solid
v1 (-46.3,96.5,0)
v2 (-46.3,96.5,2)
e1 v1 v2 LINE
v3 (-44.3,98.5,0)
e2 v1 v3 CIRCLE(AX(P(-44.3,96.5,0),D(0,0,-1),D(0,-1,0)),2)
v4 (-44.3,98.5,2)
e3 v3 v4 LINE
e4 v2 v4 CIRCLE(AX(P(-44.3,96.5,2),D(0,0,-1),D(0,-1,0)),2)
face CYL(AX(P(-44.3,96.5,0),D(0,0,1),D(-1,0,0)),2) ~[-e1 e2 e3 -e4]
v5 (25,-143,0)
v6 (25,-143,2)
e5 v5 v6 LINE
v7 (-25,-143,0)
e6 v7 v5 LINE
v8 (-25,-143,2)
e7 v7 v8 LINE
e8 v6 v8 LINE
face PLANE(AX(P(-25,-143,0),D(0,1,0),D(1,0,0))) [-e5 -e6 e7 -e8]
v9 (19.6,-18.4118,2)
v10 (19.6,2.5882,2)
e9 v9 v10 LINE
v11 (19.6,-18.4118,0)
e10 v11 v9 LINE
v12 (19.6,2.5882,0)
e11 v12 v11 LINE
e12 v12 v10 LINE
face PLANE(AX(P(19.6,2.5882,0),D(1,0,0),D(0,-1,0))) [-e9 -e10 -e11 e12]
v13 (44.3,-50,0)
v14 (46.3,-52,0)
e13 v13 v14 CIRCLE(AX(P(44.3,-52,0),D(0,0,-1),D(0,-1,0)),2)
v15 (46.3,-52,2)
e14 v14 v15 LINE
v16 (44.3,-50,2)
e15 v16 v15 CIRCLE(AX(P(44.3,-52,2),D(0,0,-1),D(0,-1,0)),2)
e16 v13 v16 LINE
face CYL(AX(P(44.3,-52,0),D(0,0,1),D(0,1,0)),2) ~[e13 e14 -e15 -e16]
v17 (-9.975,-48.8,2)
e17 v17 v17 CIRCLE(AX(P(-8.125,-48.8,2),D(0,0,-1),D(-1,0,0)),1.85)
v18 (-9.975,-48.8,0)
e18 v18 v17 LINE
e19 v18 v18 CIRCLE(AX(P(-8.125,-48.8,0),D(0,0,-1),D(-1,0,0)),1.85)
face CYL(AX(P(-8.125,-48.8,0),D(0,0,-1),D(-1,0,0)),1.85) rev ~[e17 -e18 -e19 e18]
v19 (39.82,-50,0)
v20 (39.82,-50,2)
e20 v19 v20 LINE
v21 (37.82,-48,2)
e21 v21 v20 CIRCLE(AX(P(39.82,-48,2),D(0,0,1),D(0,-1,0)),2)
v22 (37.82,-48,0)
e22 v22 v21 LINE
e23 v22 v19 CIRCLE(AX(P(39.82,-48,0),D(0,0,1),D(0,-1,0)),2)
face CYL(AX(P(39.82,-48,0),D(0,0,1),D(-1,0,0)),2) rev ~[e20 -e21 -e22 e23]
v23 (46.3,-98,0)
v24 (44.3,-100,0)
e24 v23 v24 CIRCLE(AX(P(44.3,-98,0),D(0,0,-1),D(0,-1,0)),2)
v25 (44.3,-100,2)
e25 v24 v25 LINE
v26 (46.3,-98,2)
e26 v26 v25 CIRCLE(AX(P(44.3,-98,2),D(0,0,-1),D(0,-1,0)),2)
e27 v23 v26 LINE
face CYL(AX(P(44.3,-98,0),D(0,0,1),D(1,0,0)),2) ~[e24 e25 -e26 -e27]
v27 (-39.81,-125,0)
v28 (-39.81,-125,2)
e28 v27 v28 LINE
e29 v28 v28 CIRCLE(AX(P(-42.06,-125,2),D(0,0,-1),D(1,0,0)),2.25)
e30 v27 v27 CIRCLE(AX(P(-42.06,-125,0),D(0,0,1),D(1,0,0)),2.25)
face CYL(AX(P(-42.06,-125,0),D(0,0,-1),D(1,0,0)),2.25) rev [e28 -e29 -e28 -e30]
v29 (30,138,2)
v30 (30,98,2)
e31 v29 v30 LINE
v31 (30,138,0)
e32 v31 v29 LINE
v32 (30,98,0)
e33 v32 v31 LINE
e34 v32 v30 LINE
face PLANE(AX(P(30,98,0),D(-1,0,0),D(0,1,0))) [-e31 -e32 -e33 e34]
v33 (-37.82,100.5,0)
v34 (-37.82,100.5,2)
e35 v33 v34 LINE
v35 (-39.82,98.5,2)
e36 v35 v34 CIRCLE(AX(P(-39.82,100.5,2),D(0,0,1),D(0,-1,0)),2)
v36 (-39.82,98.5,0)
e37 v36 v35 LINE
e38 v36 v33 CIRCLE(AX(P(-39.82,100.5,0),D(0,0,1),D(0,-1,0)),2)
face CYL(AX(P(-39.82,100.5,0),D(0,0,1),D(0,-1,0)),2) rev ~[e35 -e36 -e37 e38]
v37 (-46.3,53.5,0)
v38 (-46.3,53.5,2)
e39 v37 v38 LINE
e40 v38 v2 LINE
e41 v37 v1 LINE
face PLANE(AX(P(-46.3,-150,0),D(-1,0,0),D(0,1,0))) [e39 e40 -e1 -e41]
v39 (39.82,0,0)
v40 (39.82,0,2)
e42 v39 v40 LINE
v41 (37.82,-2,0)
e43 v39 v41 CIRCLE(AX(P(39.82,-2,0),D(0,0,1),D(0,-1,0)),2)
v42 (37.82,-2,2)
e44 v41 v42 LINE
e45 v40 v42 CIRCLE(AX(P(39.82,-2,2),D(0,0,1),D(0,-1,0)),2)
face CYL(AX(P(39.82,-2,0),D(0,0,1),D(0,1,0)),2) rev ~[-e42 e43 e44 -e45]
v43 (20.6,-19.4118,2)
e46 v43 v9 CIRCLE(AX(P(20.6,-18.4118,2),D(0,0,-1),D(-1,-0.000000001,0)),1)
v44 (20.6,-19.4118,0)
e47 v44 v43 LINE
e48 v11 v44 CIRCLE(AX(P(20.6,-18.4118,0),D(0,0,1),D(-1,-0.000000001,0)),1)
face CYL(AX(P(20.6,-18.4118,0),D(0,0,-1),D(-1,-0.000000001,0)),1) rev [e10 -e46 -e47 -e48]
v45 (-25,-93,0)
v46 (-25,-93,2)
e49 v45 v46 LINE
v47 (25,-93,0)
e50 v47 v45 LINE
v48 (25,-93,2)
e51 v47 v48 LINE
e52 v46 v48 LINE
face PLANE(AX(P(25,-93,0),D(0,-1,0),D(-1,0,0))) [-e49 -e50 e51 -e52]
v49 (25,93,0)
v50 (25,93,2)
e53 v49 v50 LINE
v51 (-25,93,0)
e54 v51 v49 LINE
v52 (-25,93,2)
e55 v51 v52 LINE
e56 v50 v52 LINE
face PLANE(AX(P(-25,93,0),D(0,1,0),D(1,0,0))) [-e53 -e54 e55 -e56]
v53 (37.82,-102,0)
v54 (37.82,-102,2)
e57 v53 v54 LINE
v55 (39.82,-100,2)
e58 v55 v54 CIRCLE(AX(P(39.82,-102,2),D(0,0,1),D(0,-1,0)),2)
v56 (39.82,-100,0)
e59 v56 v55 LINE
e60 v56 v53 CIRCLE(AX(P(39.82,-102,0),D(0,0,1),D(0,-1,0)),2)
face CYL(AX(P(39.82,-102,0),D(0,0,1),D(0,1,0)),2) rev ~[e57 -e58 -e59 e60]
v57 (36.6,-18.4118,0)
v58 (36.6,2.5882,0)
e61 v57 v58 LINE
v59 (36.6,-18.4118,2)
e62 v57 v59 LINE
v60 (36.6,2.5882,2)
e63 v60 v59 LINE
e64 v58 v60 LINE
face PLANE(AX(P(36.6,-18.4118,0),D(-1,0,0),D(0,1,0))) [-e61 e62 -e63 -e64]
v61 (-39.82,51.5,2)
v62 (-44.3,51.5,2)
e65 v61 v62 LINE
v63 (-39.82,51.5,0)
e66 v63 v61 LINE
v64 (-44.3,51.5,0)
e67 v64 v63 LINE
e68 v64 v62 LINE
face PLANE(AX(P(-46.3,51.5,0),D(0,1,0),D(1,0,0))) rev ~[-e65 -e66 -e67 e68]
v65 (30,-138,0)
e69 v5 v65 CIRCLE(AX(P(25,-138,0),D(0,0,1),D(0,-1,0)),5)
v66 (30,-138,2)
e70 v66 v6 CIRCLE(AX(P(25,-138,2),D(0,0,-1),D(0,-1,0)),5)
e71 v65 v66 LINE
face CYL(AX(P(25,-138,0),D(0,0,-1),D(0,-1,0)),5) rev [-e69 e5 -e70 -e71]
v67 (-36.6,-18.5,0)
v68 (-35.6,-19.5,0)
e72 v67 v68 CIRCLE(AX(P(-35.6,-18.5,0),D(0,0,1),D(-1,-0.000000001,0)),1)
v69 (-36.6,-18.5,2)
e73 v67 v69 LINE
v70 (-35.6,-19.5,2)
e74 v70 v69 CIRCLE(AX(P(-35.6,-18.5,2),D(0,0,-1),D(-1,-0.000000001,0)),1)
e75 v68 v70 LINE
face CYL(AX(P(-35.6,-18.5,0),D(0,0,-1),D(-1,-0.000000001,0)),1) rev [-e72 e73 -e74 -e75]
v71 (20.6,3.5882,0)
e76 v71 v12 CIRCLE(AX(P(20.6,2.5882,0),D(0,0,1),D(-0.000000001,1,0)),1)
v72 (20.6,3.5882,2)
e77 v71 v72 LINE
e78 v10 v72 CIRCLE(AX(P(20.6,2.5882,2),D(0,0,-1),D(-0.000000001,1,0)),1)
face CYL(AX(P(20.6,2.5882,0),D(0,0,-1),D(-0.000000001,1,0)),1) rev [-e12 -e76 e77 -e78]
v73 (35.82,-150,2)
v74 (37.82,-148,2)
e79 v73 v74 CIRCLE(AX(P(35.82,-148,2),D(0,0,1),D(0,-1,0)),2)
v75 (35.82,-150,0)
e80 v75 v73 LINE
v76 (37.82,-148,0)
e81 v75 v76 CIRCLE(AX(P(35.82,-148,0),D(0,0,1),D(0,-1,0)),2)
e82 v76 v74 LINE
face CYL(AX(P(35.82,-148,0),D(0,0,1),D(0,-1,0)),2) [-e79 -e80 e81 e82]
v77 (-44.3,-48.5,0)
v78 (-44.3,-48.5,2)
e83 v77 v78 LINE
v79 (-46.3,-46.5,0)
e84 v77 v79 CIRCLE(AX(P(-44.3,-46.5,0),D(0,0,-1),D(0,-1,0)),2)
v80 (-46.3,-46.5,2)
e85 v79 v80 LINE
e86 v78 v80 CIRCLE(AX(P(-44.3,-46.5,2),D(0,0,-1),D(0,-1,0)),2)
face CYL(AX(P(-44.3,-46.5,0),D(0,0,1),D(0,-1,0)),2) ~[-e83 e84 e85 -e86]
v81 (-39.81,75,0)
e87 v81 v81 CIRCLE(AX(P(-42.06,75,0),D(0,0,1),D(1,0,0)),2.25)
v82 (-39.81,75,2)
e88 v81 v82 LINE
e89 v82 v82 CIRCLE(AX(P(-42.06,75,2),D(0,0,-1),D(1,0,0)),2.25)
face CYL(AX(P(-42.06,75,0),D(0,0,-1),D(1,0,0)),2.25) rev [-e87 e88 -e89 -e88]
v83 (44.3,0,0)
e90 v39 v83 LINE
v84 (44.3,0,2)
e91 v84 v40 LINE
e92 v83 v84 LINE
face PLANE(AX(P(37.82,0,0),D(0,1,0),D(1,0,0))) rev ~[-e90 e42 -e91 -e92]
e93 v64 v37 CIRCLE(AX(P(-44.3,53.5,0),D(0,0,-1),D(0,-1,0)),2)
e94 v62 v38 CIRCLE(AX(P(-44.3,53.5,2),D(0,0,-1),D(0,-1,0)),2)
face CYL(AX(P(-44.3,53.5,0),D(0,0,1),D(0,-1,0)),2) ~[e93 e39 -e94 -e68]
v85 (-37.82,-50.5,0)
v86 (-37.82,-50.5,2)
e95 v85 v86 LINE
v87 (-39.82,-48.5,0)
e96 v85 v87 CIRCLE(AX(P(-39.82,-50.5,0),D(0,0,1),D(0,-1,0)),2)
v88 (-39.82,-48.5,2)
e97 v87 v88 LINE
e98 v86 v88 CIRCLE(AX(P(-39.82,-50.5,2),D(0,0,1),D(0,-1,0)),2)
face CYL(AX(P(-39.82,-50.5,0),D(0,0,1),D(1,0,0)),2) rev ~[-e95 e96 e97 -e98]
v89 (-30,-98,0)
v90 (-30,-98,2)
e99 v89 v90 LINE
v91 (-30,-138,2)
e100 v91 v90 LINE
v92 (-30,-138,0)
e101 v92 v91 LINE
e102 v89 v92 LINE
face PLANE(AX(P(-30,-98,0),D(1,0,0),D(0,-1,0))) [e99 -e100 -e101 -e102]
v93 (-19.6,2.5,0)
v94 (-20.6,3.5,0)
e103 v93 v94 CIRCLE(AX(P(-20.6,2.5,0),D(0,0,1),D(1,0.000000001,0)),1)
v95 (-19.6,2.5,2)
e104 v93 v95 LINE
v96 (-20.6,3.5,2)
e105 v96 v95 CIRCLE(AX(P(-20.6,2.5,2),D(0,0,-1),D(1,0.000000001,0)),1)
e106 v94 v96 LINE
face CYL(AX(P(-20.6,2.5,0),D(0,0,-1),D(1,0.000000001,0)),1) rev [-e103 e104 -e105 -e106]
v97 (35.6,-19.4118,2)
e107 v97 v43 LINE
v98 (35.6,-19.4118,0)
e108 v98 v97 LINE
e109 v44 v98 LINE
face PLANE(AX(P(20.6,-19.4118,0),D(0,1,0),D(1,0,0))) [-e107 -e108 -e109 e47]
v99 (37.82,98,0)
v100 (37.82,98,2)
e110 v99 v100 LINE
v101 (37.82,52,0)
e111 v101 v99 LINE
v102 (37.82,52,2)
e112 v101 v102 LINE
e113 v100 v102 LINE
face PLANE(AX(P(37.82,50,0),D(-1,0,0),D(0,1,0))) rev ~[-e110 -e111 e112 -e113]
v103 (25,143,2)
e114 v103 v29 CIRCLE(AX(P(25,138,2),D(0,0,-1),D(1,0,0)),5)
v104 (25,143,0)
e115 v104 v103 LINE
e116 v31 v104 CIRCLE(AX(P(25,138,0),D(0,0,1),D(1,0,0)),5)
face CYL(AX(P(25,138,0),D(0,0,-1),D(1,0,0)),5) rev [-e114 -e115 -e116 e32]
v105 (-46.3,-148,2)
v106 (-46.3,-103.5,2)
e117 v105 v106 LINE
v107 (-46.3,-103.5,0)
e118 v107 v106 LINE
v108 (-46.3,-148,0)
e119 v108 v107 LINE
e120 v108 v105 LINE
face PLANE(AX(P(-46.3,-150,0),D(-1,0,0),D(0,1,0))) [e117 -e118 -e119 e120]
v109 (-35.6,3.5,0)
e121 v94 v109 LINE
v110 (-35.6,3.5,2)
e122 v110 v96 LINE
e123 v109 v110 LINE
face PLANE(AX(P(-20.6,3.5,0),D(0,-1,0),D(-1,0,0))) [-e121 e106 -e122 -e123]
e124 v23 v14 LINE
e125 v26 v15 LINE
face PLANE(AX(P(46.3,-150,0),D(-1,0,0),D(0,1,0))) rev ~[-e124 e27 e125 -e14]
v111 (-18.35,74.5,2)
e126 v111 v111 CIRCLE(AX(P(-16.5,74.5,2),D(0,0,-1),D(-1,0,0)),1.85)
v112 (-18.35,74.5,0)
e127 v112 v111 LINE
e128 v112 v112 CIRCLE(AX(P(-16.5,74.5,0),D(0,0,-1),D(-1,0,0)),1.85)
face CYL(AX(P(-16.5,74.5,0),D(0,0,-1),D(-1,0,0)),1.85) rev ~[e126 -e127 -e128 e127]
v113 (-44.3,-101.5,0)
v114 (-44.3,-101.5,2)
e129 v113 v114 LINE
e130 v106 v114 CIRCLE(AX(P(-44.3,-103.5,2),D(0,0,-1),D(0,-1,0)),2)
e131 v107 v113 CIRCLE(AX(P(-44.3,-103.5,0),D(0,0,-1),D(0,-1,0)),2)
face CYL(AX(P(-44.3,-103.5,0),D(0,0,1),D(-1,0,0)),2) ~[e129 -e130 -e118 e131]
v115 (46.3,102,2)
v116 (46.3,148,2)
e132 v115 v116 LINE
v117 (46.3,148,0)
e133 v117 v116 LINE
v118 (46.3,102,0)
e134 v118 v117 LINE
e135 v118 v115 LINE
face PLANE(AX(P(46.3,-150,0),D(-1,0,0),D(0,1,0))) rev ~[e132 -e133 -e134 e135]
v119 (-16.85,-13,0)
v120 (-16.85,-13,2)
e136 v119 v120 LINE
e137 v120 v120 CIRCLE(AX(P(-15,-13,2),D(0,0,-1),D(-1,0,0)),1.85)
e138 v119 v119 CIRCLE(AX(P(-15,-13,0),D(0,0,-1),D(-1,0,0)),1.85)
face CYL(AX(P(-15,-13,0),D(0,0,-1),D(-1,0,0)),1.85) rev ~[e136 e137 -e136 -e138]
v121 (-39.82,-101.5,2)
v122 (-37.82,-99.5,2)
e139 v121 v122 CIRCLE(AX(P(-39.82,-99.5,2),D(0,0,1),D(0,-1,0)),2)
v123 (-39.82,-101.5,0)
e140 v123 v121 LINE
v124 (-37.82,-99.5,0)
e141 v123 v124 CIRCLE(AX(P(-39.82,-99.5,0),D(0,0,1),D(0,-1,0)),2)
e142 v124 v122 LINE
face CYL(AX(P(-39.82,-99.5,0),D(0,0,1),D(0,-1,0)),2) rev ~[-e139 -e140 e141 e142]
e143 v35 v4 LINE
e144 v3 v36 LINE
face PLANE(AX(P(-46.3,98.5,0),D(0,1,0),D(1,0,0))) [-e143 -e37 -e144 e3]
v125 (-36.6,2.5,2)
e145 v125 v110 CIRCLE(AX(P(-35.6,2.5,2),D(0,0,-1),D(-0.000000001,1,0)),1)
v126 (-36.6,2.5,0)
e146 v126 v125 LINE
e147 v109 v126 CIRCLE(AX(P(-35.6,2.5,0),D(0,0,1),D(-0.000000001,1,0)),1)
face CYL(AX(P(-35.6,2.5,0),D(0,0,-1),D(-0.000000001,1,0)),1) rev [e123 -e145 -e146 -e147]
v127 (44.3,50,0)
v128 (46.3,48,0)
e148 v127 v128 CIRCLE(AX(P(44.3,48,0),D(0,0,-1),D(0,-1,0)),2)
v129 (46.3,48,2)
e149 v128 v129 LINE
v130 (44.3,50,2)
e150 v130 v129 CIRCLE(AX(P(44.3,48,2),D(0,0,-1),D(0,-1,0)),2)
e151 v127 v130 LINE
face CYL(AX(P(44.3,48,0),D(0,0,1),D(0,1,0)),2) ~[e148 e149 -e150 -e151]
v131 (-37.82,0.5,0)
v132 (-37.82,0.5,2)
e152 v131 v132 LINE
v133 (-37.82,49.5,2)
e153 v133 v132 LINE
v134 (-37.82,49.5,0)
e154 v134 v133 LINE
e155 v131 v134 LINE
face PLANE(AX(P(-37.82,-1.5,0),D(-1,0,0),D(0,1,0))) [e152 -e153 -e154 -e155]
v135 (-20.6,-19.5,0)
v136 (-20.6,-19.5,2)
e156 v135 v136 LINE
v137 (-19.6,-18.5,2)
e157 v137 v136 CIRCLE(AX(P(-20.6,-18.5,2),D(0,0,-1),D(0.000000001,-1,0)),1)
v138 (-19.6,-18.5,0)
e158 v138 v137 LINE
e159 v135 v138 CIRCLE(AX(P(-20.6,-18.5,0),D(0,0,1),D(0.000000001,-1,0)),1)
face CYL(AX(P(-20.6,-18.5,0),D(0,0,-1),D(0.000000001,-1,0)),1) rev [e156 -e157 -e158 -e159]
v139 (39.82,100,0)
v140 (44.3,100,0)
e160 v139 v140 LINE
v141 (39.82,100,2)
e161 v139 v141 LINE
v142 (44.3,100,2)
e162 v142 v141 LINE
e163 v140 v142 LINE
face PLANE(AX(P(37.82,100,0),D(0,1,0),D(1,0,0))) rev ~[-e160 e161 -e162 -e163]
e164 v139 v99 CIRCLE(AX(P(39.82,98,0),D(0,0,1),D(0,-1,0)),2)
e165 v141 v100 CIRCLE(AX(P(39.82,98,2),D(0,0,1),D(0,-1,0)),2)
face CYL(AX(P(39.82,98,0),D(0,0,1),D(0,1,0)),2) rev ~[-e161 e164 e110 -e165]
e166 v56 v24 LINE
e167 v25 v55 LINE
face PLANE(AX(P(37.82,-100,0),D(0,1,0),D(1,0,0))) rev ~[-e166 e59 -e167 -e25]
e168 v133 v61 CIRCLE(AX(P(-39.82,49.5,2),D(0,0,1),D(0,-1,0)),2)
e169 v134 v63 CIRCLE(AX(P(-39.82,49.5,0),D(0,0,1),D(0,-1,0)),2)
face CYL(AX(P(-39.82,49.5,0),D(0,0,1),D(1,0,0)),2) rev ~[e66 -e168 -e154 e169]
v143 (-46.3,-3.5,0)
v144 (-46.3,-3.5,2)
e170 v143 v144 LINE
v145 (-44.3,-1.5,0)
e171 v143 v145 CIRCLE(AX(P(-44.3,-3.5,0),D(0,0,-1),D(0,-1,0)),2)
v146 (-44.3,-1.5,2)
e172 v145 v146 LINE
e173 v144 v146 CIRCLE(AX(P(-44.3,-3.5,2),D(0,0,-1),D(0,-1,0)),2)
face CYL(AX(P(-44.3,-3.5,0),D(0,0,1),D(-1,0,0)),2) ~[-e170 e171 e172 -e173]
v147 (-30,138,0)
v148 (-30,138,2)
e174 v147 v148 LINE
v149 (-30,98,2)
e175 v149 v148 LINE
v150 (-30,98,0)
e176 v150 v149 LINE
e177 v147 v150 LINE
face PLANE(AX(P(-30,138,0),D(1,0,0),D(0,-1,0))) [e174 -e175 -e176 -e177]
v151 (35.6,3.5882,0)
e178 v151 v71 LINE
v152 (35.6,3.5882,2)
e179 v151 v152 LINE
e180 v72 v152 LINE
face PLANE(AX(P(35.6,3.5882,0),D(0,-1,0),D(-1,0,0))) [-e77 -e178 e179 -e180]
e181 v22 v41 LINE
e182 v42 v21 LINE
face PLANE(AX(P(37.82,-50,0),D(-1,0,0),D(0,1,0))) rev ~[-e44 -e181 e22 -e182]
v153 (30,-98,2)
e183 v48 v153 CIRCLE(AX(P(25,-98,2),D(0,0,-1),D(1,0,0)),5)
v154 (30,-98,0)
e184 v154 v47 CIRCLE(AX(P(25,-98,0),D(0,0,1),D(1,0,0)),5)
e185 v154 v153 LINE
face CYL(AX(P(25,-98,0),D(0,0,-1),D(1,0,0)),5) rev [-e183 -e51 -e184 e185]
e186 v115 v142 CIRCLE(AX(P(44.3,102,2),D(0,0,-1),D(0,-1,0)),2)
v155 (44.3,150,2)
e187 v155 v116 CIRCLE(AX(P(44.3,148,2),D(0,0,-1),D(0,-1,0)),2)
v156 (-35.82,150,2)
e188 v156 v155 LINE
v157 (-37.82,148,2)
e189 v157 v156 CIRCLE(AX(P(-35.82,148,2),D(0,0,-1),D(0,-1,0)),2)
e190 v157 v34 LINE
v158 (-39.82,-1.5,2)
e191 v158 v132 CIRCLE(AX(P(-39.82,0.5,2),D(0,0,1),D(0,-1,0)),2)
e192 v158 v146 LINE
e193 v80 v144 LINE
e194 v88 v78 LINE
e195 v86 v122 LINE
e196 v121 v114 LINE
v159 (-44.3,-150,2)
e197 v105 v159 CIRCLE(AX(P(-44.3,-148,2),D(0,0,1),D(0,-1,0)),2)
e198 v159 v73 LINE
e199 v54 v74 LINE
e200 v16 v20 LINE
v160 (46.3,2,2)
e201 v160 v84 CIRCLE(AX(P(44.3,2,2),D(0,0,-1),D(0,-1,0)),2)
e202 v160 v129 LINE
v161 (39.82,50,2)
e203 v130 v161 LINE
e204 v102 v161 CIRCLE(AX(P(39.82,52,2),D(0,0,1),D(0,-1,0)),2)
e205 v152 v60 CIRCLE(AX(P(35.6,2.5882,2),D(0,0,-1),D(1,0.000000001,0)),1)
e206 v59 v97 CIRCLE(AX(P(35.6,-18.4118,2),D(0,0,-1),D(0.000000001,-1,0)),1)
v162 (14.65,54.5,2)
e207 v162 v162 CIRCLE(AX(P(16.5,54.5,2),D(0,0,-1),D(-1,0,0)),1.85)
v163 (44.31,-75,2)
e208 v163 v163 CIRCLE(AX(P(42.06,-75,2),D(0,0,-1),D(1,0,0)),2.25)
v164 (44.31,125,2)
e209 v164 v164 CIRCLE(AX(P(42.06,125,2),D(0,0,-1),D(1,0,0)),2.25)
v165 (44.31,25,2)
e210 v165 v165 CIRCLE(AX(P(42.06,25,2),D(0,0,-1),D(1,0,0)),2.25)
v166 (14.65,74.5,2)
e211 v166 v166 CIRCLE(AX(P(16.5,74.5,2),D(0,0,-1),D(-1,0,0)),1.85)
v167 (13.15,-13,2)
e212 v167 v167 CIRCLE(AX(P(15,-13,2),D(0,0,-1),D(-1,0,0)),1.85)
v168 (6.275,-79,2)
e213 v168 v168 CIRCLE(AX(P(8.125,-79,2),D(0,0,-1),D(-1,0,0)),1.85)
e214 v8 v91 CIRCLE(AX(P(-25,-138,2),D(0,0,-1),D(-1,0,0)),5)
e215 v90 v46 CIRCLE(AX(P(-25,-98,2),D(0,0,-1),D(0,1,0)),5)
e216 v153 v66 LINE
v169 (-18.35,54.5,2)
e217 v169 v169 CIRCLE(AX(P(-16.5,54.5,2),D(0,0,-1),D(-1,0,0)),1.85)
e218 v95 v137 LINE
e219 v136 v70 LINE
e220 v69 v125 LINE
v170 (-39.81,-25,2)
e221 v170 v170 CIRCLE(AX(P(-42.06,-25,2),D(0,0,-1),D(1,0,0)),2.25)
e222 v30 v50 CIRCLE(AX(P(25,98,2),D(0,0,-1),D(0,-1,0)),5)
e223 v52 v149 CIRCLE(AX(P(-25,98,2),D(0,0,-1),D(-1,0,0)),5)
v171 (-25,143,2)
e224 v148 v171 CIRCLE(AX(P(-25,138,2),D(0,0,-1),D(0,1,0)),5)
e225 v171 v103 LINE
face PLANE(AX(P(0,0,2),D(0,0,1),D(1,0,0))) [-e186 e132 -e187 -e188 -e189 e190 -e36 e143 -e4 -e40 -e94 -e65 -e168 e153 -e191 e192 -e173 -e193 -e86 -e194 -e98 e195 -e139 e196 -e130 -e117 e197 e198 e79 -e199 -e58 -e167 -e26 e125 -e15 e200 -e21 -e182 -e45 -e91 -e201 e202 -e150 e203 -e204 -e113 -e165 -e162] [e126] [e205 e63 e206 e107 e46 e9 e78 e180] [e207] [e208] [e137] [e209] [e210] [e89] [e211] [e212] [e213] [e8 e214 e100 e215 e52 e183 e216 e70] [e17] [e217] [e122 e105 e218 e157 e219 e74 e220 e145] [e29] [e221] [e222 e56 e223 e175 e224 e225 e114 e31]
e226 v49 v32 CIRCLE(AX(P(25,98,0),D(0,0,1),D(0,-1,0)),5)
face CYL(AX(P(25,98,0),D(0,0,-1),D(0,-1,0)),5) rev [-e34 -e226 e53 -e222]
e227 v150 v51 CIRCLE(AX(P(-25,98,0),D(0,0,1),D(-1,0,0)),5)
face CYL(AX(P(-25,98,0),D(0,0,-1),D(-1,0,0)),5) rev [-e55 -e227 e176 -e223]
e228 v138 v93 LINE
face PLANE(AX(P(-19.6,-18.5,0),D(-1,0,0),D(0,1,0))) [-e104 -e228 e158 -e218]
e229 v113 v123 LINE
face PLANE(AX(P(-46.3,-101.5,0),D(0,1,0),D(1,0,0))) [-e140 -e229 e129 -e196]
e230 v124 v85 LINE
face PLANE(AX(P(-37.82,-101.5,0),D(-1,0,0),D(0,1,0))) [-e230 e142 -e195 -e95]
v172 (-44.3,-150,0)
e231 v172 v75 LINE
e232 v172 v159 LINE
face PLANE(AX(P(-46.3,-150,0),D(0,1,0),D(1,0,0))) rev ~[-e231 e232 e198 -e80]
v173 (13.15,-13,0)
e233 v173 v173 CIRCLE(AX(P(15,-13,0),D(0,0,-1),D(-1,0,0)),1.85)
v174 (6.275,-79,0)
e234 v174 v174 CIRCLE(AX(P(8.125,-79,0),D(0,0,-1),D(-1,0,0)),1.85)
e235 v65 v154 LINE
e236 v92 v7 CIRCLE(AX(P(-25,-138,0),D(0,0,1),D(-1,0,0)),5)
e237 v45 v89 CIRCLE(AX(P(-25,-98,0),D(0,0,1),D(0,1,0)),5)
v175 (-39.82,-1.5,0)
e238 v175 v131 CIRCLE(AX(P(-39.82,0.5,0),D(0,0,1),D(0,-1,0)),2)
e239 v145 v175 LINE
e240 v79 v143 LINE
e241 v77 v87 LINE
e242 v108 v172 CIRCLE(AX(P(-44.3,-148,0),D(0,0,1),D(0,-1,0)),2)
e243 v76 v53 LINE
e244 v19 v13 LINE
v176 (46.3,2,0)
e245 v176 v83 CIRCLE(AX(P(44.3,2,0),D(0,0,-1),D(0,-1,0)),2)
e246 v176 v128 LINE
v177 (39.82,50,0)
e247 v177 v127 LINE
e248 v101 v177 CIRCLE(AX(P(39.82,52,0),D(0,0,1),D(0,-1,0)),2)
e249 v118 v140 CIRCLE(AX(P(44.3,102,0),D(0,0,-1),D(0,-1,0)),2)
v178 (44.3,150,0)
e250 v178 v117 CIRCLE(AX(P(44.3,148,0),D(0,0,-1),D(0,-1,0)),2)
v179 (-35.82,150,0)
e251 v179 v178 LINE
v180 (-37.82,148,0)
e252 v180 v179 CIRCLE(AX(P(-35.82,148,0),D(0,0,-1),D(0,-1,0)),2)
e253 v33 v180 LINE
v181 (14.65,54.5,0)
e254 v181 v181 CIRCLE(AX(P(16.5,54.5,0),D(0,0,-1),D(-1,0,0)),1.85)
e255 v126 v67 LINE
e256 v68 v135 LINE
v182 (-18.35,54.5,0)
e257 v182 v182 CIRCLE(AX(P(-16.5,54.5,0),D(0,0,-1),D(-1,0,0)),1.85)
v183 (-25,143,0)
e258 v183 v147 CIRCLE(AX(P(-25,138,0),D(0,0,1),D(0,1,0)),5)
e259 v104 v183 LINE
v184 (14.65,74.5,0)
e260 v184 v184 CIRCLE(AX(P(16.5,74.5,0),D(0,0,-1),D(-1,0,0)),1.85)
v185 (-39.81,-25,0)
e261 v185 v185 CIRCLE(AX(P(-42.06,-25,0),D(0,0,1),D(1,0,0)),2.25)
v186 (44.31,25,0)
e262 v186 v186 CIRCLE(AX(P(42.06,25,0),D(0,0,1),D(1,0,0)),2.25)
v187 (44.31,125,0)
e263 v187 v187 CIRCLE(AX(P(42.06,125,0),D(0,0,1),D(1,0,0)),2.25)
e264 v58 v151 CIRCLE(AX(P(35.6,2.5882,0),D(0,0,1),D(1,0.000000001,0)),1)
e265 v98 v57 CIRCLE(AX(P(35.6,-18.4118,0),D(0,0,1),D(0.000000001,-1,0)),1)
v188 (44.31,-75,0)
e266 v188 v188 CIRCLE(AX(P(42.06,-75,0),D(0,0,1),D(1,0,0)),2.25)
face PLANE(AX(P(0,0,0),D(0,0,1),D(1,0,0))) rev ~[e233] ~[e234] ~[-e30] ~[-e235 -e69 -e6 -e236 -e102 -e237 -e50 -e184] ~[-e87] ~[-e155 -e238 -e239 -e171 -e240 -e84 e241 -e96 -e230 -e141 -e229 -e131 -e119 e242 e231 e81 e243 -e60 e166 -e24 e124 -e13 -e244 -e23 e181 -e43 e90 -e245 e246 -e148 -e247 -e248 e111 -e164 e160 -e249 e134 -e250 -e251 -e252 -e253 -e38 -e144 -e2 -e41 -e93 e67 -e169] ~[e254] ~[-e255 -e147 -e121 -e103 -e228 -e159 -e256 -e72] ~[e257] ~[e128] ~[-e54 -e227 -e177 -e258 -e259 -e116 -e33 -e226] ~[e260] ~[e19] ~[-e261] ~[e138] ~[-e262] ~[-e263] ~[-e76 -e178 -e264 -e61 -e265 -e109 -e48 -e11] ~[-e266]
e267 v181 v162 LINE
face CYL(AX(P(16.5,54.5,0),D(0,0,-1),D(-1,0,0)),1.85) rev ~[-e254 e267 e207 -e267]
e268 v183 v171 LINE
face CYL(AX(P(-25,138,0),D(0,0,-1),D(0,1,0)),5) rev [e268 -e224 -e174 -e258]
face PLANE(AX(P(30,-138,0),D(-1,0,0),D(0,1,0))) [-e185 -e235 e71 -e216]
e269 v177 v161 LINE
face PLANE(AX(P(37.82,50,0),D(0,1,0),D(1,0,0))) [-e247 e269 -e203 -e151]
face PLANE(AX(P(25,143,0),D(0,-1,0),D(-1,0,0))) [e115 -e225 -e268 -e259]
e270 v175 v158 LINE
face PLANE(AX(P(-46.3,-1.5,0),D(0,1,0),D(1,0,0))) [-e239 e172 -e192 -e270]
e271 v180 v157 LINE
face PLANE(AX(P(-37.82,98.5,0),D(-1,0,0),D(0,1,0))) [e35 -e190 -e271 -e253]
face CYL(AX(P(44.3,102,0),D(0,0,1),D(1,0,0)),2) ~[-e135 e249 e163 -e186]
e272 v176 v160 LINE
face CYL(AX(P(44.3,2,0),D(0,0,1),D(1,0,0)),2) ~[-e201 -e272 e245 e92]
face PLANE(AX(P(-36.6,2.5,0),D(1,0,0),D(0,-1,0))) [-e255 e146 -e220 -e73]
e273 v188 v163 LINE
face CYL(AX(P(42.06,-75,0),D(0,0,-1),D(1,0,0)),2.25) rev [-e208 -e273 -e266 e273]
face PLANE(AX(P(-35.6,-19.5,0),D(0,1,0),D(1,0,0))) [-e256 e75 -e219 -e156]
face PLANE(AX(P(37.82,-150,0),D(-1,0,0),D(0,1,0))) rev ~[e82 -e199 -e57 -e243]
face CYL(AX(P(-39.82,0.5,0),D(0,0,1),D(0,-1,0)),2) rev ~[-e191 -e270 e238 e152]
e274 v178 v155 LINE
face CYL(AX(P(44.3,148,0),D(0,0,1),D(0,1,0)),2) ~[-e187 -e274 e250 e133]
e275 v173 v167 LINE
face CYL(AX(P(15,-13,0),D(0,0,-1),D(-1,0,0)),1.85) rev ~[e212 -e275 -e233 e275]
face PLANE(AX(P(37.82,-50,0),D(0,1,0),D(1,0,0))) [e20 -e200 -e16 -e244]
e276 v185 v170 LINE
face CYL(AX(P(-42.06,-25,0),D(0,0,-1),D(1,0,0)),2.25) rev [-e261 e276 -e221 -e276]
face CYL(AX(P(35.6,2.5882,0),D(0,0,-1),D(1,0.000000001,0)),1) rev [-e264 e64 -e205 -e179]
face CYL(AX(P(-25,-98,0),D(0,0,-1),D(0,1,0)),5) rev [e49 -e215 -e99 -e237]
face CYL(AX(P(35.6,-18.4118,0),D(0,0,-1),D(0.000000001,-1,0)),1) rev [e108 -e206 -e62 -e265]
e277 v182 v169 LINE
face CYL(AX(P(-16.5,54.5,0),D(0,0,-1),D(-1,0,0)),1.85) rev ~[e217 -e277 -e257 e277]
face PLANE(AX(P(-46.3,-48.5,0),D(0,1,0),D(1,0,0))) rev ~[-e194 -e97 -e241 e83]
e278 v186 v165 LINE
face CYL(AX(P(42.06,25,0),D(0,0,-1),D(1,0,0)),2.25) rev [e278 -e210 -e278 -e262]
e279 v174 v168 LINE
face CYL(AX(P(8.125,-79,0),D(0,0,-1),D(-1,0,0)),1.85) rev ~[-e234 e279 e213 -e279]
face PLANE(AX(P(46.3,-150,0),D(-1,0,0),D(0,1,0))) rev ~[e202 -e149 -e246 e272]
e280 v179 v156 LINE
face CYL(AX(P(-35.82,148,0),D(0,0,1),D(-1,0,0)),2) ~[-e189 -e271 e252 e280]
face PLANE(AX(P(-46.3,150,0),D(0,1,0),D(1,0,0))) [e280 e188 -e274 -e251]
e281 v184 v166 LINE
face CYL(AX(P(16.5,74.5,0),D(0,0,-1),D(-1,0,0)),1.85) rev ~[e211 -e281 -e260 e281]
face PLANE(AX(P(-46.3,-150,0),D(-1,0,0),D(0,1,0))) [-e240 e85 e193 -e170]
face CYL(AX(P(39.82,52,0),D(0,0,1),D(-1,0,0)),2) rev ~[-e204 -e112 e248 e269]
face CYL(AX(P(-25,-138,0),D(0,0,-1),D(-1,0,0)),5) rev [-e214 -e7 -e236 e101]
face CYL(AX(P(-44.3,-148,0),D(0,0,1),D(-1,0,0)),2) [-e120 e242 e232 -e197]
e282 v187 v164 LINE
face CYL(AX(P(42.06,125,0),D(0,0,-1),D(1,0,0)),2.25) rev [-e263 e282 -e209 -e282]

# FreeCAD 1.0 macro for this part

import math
import FreeCAD as App
import Part
import Sketcher

V = App.Vector


def edges_at(feature, points):
    """Names of the edges that pass closest to the given points."""
    edges = feature.Shape.Edges
    near = lambda p: min(range(len(edges)), key=lambda i: edges[i].distToShape(Part.Vertex(*p))[0])
    return sorted({f"Edge{near(p) + 1}" for p in points})


def add_polygon(sketch, points):
    """Adds a closed chain of lines whose ends are joined by coincident constraints."""
    first, n = sketch.GeometryCount, len(points)
    for a, b in zip(points, points[1:] + points[:1]):
        sketch.addGeometry(Part.LineSegment(App.Vector(*a, 0), App.Vector(*b, 0)), False)
    for i in range(n):
        sketch.addConstraint(Sketcher.Constraint("Coincident", first + i, 2, first + (i + 1) % n, 1))

doc = App.newDocument("Part")
params = doc.addObject("Spreadsheet::Sheet", "Params")
for row, (alias, value) in enumerate([
    ("sketch1_height", "300 mm"),
    ("sketch1_width", "92.6 mm"),
    ("pad1_length", "2 mm"),
    ("sketch2_diameter", "4.5 mm"),
    ("sketch2_height", "50 mm"),
    ("sketch2_height2", "53 mm"),
    ("sketch2_height3", "51.5 mm"),
    ("sketch2_width", "8.48 mm"),
    ("pocket1_length", "10 mm"),
    ("fillet_radius", "2 mm"),
    ("sketch3_diameter", "3.7 mm"),
    ("pocket2_length", "5 mm"),
    ("sketch4_radius", "1 mm"),
    ("sketch4_diameter", "3.7 mm"),
    ("sketch4_width", "15 mm"),
    ("sketch4_height", "21 mm"),
    ("pocket3_length", "10 mm"),
    ("sketch5_diameter", "3.7 mm"),
    ("pocket4_length", "8.5 mm"),
    ("sketch6_radius", "5 mm"),
    ("sketch6_width", "50 mm"),
    ("sketch6_height", "40 mm"),
    ("pocket5_length", "8.5 mm"),
], start=1):
    params.set(f"A{row}", alias)
    params.set(f"B{row}", "=" + value)
    params.setAlias(f"B{row}", alias)

body = doc.addObject("PartDesign::Body", "Body")

# Sketch on XY plane
sketch1 = doc.addObject("Sketcher::SketchObject", "Sketch")
body.addObject(sketch1)
sketch1.AttachmentSupport = (doc.XY_Plane, [""])
sketch1.MapMode = "FlatFace"
add_polygon(sketch1, [(-46.3, 150), (-46.3, -150), (46.3, -150), (46.3, 150)])  # lines 0-3
sketch1.addConstraint(Sketcher.Constraint("Vertical", 0))
sketch1.addConstraint(Sketcher.Constraint("Horizontal", 1))
sketch1.addConstraint(Sketcher.Constraint("Vertical", 2))
sketch1.addConstraint(Sketcher.Constraint("Horizontal", 3))
sketch1.addConstraint(Sketcher.Constraint("Symmetric", 0, 2, 2, 2, -1, 1))
sketch1.addConstraint(Sketcher.Constraint("DistanceY", 0, 2, 0, 1, 300.0))
sketch1.addConstraint(Sketcher.Constraint("DistanceX", 1, 1, 1, 2, 92.6))
sketch1.setExpression("Constraints[9]", "Params.sketch1_height")
sketch1.setExpression("Constraints[10]", "Params.sketch1_width")
pad1 = doc.addObject("PartDesign::Pad", "Pad")
body.addObject(pad1)
pad1.Profile = sketch1
pad1.setExpression("Length", "Params.pad1_length")

# Sketch on XY plane
sketch2 = doc.addObject("Sketcher::SketchObject", "Sketch001")
body.addObject(sketch2)
sketch2.AttachmentSupport = (doc.XY_Plane, [""])
sketch2.MapMode = "FlatFace"
sketch2.addGeometry(Part.Circle(V(-42.06, 75, 0), V(0, 0, 1), 2.25), False)  # 0
sketch2.addGeometry(Part.Circle(V(42.06, 125, 0), V(0, 0, 1), 2.25), False)  # 1
sketch2.addGeometry(Part.Circle(V(42.06, 25, 0), V(0, 0, 1), 2.25), False)  # 2
sketch2.addGeometry(Part.Circle(V(42.06, -75, 0), V(0, 0, 1), 2.25), False)  # 3
sketch2.addGeometry(Part.Circle(V(-42.06, -25, 0), V(0, 0, 1), 2.25), False)  # 4
sketch2.addGeometry(Part.Circle(V(-42.06, -125, 0), V(0, 0, 1), 2.25), False)  # 5
add_polygon(sketch2, [(-46.3, 150), (-46.3, 98.5), (-37.82, 98.5), (-37.82, 150)])  # lines 6-9
add_polygon(sketch2, [(37.82, 100), (37.82, 50), (46.3, 50), (46.3, 100)])  # lines 10-13
add_polygon(sketch2, [(37.82, 0), (37.82, -50), (46.3, -50), (46.3, 0)])  # lines 14-17
add_polygon(sketch2, [(-46.3, 51.5), (-46.3, -1.5), (-37.82, -1.5), (-37.82, 51.5)])  # lines 18-21
add_polygon(sketch2, [(-46.3, -48.5), (-46.3, -101.5), (-37.82, -101.5), (-37.82, -48.5)])  # lines 22-25
add_polygon(sketch2, [(37.82, -100), (37.82, -150), (46.3, -150), (46.3, -100)])  # lines 26-29
sketch2.addConstraint(Sketcher.Constraint("Vertical", 6))
sketch2.addConstraint(Sketcher.Constraint("Horizontal", 7))
sketch2.addConstraint(Sketcher.Constraint("Vertical", 8))
sketch2.addConstraint(Sketcher.Constraint("Horizontal", 9))
sketch2.addConstraint(Sketcher.Constraint("Vertical", 10))
sketch2.addConstraint(Sketcher.Constraint("Horizontal", 11))
sketch2.addConstraint(Sketcher.Constraint("Vertical", 12))
sketch2.addConstraint(Sketcher.Constraint("Horizontal", 13))
sketch2.addConstraint(Sketcher.Constraint("Vertical", 14))
sketch2.addConstraint(Sketcher.Constraint("Horizontal", 15))
sketch2.addConstraint(Sketcher.Constraint("Vertical", 16))
sketch2.addConstraint(Sketcher.Constraint("Horizontal", 17))
sketch2.addConstraint(Sketcher.Constraint("Vertical", 18))
sketch2.addConstraint(Sketcher.Constraint("Horizontal", 19))
sketch2.addConstraint(Sketcher.Constraint("Vertical", 20))
sketch2.addConstraint(Sketcher.Constraint("Horizontal", 21))
sketch2.addConstraint(Sketcher.Constraint("Vertical", 22))
sketch2.addConstraint(Sketcher.Constraint("Horizontal", 23))
sketch2.addConstraint(Sketcher.Constraint("Vertical", 24))
sketch2.addConstraint(Sketcher.Constraint("Horizontal", 25))
sketch2.addConstraint(Sketcher.Constraint("Vertical", 26))
sketch2.addConstraint(Sketcher.Constraint("Horizontal", 27))
sketch2.addConstraint(Sketcher.Constraint("Vertical", 28))
sketch2.addConstraint(Sketcher.Constraint("Horizontal", 29))
sketch2.addConstraint(Sketcher.Constraint("Equal", 0, 1))
sketch2.addConstraint(Sketcher.Constraint("Equal", 1, 2))
sketch2.addConstraint(Sketcher.Constraint("Equal", 2, 3))
sketch2.addConstraint(Sketcher.Constraint("Equal", 3, 4))
sketch2.addConstraint(Sketcher.Constraint("Equal", 4, 5))
sketch2.addConstraint(Sketcher.Constraint("Symmetric", 0, 3, 3, 3, -1, 1))
sketch2.addConstraint(Sketcher.Constraint("Symmetric", 2, 3, 4, 3, -1, 1))
sketch2.addConstraint(Sketcher.Constraint("Symmetric", 1, 3, 5, 3, -1, 1))
sketch2.addConstraint(Sketcher.Constraint("Symmetric", 8, 2, 26, 2, -1, 1))
sketch2.addConstraint(Sketcher.Constraint("Symmetric", 10, 2, 14, 2, -1))
sketch2.addConstraint(Sketcher.Constraint("Symmetric", 12, 2, 28, 2, -1))
sketch2.addConstraint(Sketcher.Constraint("PointOnObject", 16, 2, -1))
sketch2.addConstraint(Sketcher.Constraint("Vertical", 1, 3, 2, 3))
sketch2.addConstraint(Sketcher.Constraint("Vertical", 2, 3, 3, 3))
sketch2.addConstraint(Sketcher.Constraint("Vertical", 12, 2, 15, 2))
sketch2.addConstraint(Sketcher.Constraint("Vertical", 9, 2, 18, 2))
sketch2.addConstraint(Sketcher.Constraint("Vertical", 8, 2, 19, 2))
sketch2.addConstraint(Sketcher.Constraint("Vertical", 21, 2, 22, 2))
sketch2.addConstraint(Sketcher.Constraint("Vertical", 20, 2, 23, 2))
sketch2.addConstraint(Sketcher.Constraint("Vertical", 17, 2, 26, 2))
sketch2.addConstraint(Sketcher.Constraint("Equal", 9, 11))
sketch2.addConstraint(Sketcher.Constraint("Equal", 12, 14))
sketch2.addConstraint(Sketcher.Constraint("Equal", 20, 22))
sketch2.addConstraint(Sketcher.Constraint("Equal", 16, 26))
sketch2.addConstraint(Sketcher.Constraint("Diameter", 0, 4.5))
sketch2.addConstraint(Sketcher.Constraint("DistanceY", 10, 2, 10, 1, 50.0))
sketch2.addConstraint(Sketcher.Constraint("DistanceY", 18, 2, 18, 1, 53.0))
sketch2.addConstraint(Sketcher.Constraint("DistanceY", 6, 2, 6, 1, 51.5))
sketch2.addConstraint(Sketcher.Constraint("DistanceY", -1, 1, 0, 3, 75.0))
sketch2.addConstraint(Sketcher.Constraint("DistanceY", -1, 1, 1, 3, 125.0))
sketch2.addConstraint(Sketcher.Constraint("DistanceY", -1, 1, 2, 3, 25.0))
sketch2.addConstraint(Sketcher.Constraint("DistanceY", 20, 2, 7, 2, 47.0))
sketch2.addConstraint(Sketcher.Constraint("DistanceY", 22, 2, 18, 2, 100.0))
sketch2.addConstraint(Sketcher.Constraint("DistanceX", 7, 1, 7, 2, 8.48))
sketch2.addConstraint(Sketcher.Constraint("DistanceX", 6, 2, -1, 1, 46.3))
sketch2.addConstraint(Sketcher.Constraint("DistanceX", 0, 3, -1, 1, 42.06))
sketch2.setExpression("Constraints[72]", "Params.sketch2_diameter")
sketch2.setExpression("Constraints[73]", "Params.sketch2_height")
sketch2.setExpression("Constraints[74]", "Params.sketch2_height2")
sketch2.setExpression("Constraints[75]", "Params.sketch2_height3")
sketch2.setExpression("Constraints[81]", "Params.sketch2_width")
pocket1 = doc.addObject("PartDesign::Pocket", "Pocket")
body.addObject(pocket1)
pocket1.Profile = sketch2
pocket1.setExpression("Length", "Params.pocket1_length")
pocket1.Reversed = True
doc.recompute()

fillet = doc.addObject("PartDesign::Fillet", "Fillet")
body.addObject(fillet)
fillet.Base = (pocket1, edges_at(pocket1, [
    (46.3, -100, 1),
    (37.82, -100, 1),
    (37.82, -150, 1),
    (46.3, 50, 1),
    (46.3, 100, 1),
    (37.82, 100, 1),
    (37.82, 50, 1),
    (-46.3, -48.5, 1),
    (-46.3, -101.5, 1),
    (-37.82, -101.5, 1),
    (-37.82, -48.5, 1),
    (37.82, 0, 1),
    (37.82, -50, 1),
    (46.3, -50, 1),
    (46.3, 0, 1),
    (46.3, 150, 1),
    (-46.3, -150, 1),
    (-46.3, 51.5, 1),
    (-46.3, -1.5, 1),
    (-37.82, -1.5, 1),
    (-37.82, 51.5, 1),
    (-46.3, 98.5, 1),
    (-37.82, 98.5, 1),
    (-37.82, 150, 1),
]))
fillet.setExpression("Radius", "Params.fillet_radius")

# Sketch on XY plane
sketch3 = doc.addObject("Sketcher::SketchObject", "Sketch002")
body.addObject(sketch3)
sketch3.AttachmentSupport = (doc.XY_Plane, [""])
sketch3.MapMode = "FlatFace"
sketch3.addGeometry(Part.Circle(V(8.125, -79, 0), V(0, 0, 1), 1.85), False)
sketch3.addGeometry(Part.Circle(V(-8.125, -48.8, 0), V(0, 0, 1), 1.85), False)
sketch3.addConstraint(Sketcher.Constraint("Equal", 0, 1))
sketch3.addConstraint(Sketcher.Constraint("Diameter", 0, 3.7))
sketch3.addConstraint(Sketcher.Constraint("DistanceY", 0, 3, -1, 1, 79.0))
sketch3.addConstraint(Sketcher.Constraint("DistanceY", 1, 3, -1, 1, 48.8))
sketch3.addConstraint(Sketcher.Constraint("DistanceX", 1, 3, 0, 3, 16.25))
sketch3.addConstraint(Sketcher.Constraint("DistanceX", -1, 1, 0, 3, 8.125))
sketch3.setExpression("Constraints[1]", "Params.sketch3_diameter")
pocket2 = doc.addObject("PartDesign::Pocket", "Pocket001")
body.addObject(pocket2)
pocket2.Profile = sketch3
pocket2.setExpression("Length", "Params.pocket2_length")
pocket2.Reversed = True

# Sketch on XY plane
sketch4 = doc.addObject("Sketcher::SketchObject", "Sketch003")
body.addObject(sketch4)
sketch4.AttachmentSupport = (doc.XY_Plane, [""])
sketch4.MapMode = "FlatFace"
sketch4.addGeometry(Part.Circle(V(15, -13, 0), V(0, 0, 1), 1.85), False)
sketch4.addGeometry(Part.Circle(V(-15, -13, 0), V(0, 0, 1), 1.85), False)
sketch4.addGeometry(Part.LineSegment(V(-35.6, 3.5, 0), V(-20.6, 3.5, 0)), False)
sketch4.addGeometry(Part.ArcOfCircle(Part.Circle(V(-20.6, 2.5, 0), V(0, 0, 1), 1), math.radians(0), math.radians(90)), False)
sketch4.addGeometry(Part.LineSegment(V(-19.6, 2.5, 0), V(-19.6, -18.5, 0)), False)
sketch4.addGeometry(Part.ArcOfCircle(Part.Circle(V(-20.6, -18.5, 0), V(0, 0, 1), 1), math.radians(-90), math.radians(0)), False)
sketch4.addGeometry(Part.LineSegment(V(-20.6, -19.5, 0), V(-35.6, -19.5, 0)), False)
sketch4.addGeometry(Part.ArcOfCircle(Part.Circle(V(-35.6, -18.5, 0), V(0, 0, 1), 1), math.radians(-180), math.radians(-90)), False)
sketch4.addGeometry(Part.LineSegment(V(-36.6, -18.5, 0), V(-36.6, 2.5, 0)), False)
sketch4.addGeometry(Part.ArcOfCircle(Part.Circle(V(-35.6, 2.5, 0), V(0, 0, 1), 1), math.radians(90), math.radians(180)), False)
sketch4.addGeometry(Part.LineSegment(V(20.6, 3.5882, 0), V(35.6, 3.5882, 0)), False)
sketch4.addGeometry(Part.ArcOfCircle(Part.Circle(V(35.6, 2.5882, 0), V(0, 0, 1), 1), math.radians(0), math.radians(90)), False)
sketch4.addGeometry(Part.LineSegment(V(36.6, 2.5882, 0), V(36.6, -18.4118, 0)), False)
sketch4.addGeometry(Part.ArcOfCircle(Part.Circle(V(35.6, -18.4118, 0), V(0, 0, 1), 1), math.radians(-90), math.radians(0)), False)
sketch4.addGeometry(Part.LineSegment(V(35.6, -19.4118, 0), V(20.6, -19.4118, 0)), False)
sketch4.addGeometry(Part.ArcOfCircle(Part.Circle(V(20.6, -18.4118, 0), V(0, 0, 1), 1), math.radians(-180), math.radians(-90)), False)
sketch4.addGeometry(Part.LineSegment(V(19.6, -18.4118, 0), V(19.6, 2.5882, 0)), False)
sketch4.addGeometry(Part.ArcOfCircle(Part.Circle(V(20.6, 2.5882, 0), V(0, 0, 1), 1), math.radians(90), math.radians(180)), False)
sketch4.addConstraint(Sketcher.Constraint("Tangent", 2, 2, 3, 2))
sketch4.addConstraint(Sketcher.Constraint("Tangent", 3, 1, 4, 1))
sketch4.addConstraint(Sketcher.Constraint("Tangent", 4, 2, 5, 2))
sketch4.addConstraint(Sketcher.Constraint("Tangent", 5, 1, 6, 1))
sketch4.addConstraint(Sketcher.Constraint("Tangent", 6, 2, 7, 2))
sketch4.addConstraint(Sketcher.Constraint("Tangent", 7, 1, 8, 1))
sketch4.addConstraint(Sketcher.Constraint("Tangent", 8, 2, 9, 2))
sketch4.addConstraint(Sketcher.Constraint("Tangent", 9, 1, 2, 1))
sketch4.addConstraint(Sketcher.Constraint("Tangent", 10, 2, 11, 2))
sketch4.addConstraint(Sketcher.Constraint("Tangent", 11, 1, 12, 1))
sketch4.addConstraint(Sketcher.Constraint("Tangent", 12, 2, 13, 2))
sketch4.addConstraint(Sketcher.Constraint("Tangent", 13, 1, 14, 1))
sketch4.addConstraint(Sketcher.Constraint("Tangent", 14, 2, 15, 2))
sketch4.addConstraint(Sketcher.Constraint("Tangent", 15, 1, 16, 1))
sketch4.addConstraint(Sketcher.Constraint("Tangent", 16, 2, 17, 2))
sketch4.addConstraint(Sketcher.Constraint("Tangent", 17, 1, 10, 1))
sketch4.addConstraint(Sketcher.Constraint("Horizontal", 2))
sketch4.addConstraint(Sketcher.Constraint("Vertical", 4))
sketch4.addConstraint(Sketcher.Constraint("Horizontal", 6))
sketch4.addConstraint(Sketcher.Constraint("Vertical", 8))
sketch4.addConstraint(Sketcher.Constraint("Horizontal", 10))
sketch4.addConstraint(Sketcher.Constraint("Vertical", 12))
sketch4.addConstraint(Sketcher.Constraint("Horizontal", 14))
sketch4.addConstraint(Sketcher.Constraint("Vertical", 16))
sketch4.addConstraint(Sketcher.Constraint("Equal", 0, 1))
sketch4.addConstraint(Sketcher.Constraint("Equal", 3, 5))
sketch4.addConstraint(Sketcher.Constraint("Equal", 5, 7))
sketch4.addConstraint(Sketcher.Constraint("Equal", 7, 9))
sketch4.addConstraint(Sketcher.Constraint("Equal", 9, 11))
sketch4.addConstraint(Sketcher.Constraint("Equal", 11, 13))
sketch4.addConstraint(Sketcher.Constraint("Equal", 13, 15))
sketch4.addConstraint(Sketcher.Constraint("Equal", 15, 17))
sketch4.addConstraint(Sketcher.Constraint("Symmetric", 0, 3, 1, 3, -2))
sketch4.addConstraint(Sketcher.Constraint("Equal", 6, 10))
sketch4.addConstraint(Sketcher.Constraint("Equal", 8, 12))
sketch4.addConstraint(Sketcher.Constraint("Radius", 3, 1.0))
sketch4.addConstraint(Sketcher.Constraint("Diameter", 0, 3.7))
sketch4.addConstraint(Sketcher.Constraint("DistanceX", 2, 1, 2, 2, 15.0))
sketch4.addConstraint(Sketcher.Constraint("DistanceY", 4, 2, 4, 1, 21.0))
sketch4.addConstraint(Sketcher.Constraint("DistanceX", -1, 1, 0, 3, 15.0))
sketch4.addConstraint(Sketcher.Constraint("DistanceY", 0, 3, -1, 1, 13.0))
sketch4.addConstraint(Sketcher.Constraint("DistanceX", 3, 3, -1, 1, 20.6))
sketch4.addConstraint(Sketcher.Constraint("DistanceY", -1, 1, 3, 3, 2.5))
sketch4.addConstraint(Sketcher.Constraint("DistanceX", -1, 1, 11, 3, 35.6))
sketch4.addConstraint(Sketcher.Constraint("DistanceY", -1, 1, 11, 3, 2.5882))
sketch4.setExpression("Constraints[35]", "Params.sketch4_radius")
sketch4.setExpression("Constraints[36]", "Params.sketch4_diameter")
sketch4.setExpression("Constraints[37]", "Params.sketch4_width")
sketch4.setExpression("Constraints[38]", "Params.sketch4_height")
pocket3 = doc.addObject("PartDesign::Pocket", "Pocket002")
body.addObject(pocket3)
pocket3.Profile = sketch4
pocket3.setExpression("Length", "Params.pocket3_length")
pocket3.Reversed = True

# Sketch on XY plane
sketch5 = doc.addObject("Sketcher::SketchObject", "Sketch004")
body.addObject(sketch5)
sketch5.AttachmentSupport = (doc.XY_Plane, [""])
sketch5.MapMode = "FlatFace"
sketch5.addGeometry(Part.Circle(V(16.5, 74.5, 0), V(0, 0, 1), 1.85), False)
sketch5.addGeometry(Part.Circle(V(-16.5, 74.5, 0), V(0, 0, 1), 1.85), False)
sketch5.addGeometry(Part.Circle(V(-16.5, 54.5, 0), V(0, 0, 1), 1.85), False)
sketch5.addGeometry(Part.Circle(V(16.5, 54.5, 0), V(0, 0, 1), 1.85), False)
sketch5.addConstraint(Sketcher.Constraint("Equal", 0, 1))
sketch5.addConstraint(Sketcher.Constraint("Equal", 1, 2))
sketch5.addConstraint(Sketcher.Constraint("Equal", 2, 3))
sketch5.addConstraint(Sketcher.Constraint("Symmetric", 0, 3, 1, 3, -2))
sketch5.addConstraint(Sketcher.Constraint("Symmetric", 2, 3, 3, 3, -2))
sketch5.addConstraint(Sketcher.Constraint("Vertical", 1, 3, 2, 3))
sketch5.addConstraint(Sketcher.Constraint("Diameter", 0, 3.7))
sketch5.addConstraint(Sketcher.Constraint("DistanceX", 1, 3, 0, 3, 33.0))
sketch5.addConstraint(Sketcher.Constraint("DistanceY", 2, 3, 1, 3, 20.0))
sketch5.addConstraint(Sketcher.Constraint("DistanceY", -1, 1, 0, 3, 74.5))
sketch5.setExpression("Constraints[6]", "Params.sketch5_diameter")
pocket4 = doc.addObject("PartDesign::Pocket", "Pocket003")
body.addObject(pocket4)
pocket4.Profile = sketch5
pocket4.setExpression("Length", "Params.pocket4_length")
pocket4.Reversed = True

# Sketch on XY plane
sketch6 = doc.addObject("Sketcher::SketchObject", "Sketch005")
body.addObject(sketch6)
sketch6.AttachmentSupport = (doc.XY_Plane, [""])
sketch6.MapMode = "FlatFace"
sketch6.addGeometry(Part.LineSegment(V(25, 93, 0), V(-25, 93, 0)), False)
sketch6.addGeometry(Part.ArcOfCircle(Part.Circle(V(-25, 98, 0), V(0, 0, 1), 5), math.radians(180), math.radians(270)), False)
sketch6.addGeometry(Part.LineSegment(V(-30, 98, 0), V(-30, 138, 0)), False)
sketch6.addGeometry(Part.ArcOfCircle(Part.Circle(V(-25, 138, 0), V(0, 0, 1), 5), math.radians(90), math.radians(180)), False)
sketch6.addGeometry(Part.LineSegment(V(-25, 143, 0), V(25, 143, 0)), False)
sketch6.addGeometry(Part.ArcOfCircle(Part.Circle(V(25, 138, 0), V(0, 0, 1), 5), math.radians(0), math.radians(90)), False)
sketch6.addGeometry(Part.LineSegment(V(30, 138, 0), V(30, 98, 0)), False)
sketch6.addGeometry(Part.ArcOfCircle(Part.Circle(V(25, 98, 0), V(0, 0, 1), 5), math.radians(-90), math.radians(0)), False)
sketch6.addGeometry(Part.LineSegment(V(25, -143, 0), V(-25, -143, 0)), False)
sketch6.addGeometry(Part.ArcOfCircle(Part.Circle(V(-25, -138, 0), V(0, 0, 1), 5), math.radians(180), math.radians(270)), False)
sketch6.addGeometry(Part.LineSegment(V(-30, -138, 0), V(-30, -98, 0)), False)
sketch6.addGeometry(Part.ArcOfCircle(Part.Circle(V(-25, -98, 0), V(0, 0, 1), 5), math.radians(90), math.radians(180)), False)
sketch6.addGeometry(Part.LineSegment(V(-25, -93, 0), V(25, -93, 0)), False)
sketch6.addGeometry(Part.ArcOfCircle(Part.Circle(V(25, -98, 0), V(0, 0, 1), 5), math.radians(0), math.radians(90)), False)
sketch6.addGeometry(Part.LineSegment(V(30, -98, 0), V(30, -138, 0)), False)
sketch6.addGeometry(Part.ArcOfCircle(Part.Circle(V(25, -138, 0), V(0, 0, 1), 5), math.radians(-90), math.radians(0)), False)
sketch6.addConstraint(Sketcher.Constraint("Tangent", 0, 2, 1, 2))
sketch6.addConstraint(Sketcher.Constraint("Tangent", 1, 1, 2, 1))
sketch6.addConstraint(Sketcher.Constraint("Tangent", 2, 2, 3, 2))
sketch6.addConstraint(Sketcher.Constraint("Tangent", 3, 1, 4, 1))
sketch6.addConstraint(Sketcher.Constraint("Tangent", 4, 2, 5, 2))
sketch6.addConstraint(Sketcher.Constraint("Tangent", 5, 1, 6, 1))
sketch6.addConstraint(Sketcher.Constraint("Tangent", 6, 2, 7, 2))
sketch6.addConstraint(Sketcher.Constraint("Tangent", 7, 1, 0, 1))
sketch6.addConstraint(Sketcher.Constraint("Tangent", 8, 2, 9, 2))
sketch6.addConstraint(Sketcher.Constraint("Tangent", 9, 1, 10, 1))
sketch6.addConstraint(Sketcher.Constraint("Tangent", 10, 2, 11, 2))
sketch6.addConstraint(Sketcher.Constraint("Tangent", 11, 1, 12, 1))
sketch6.addConstraint(Sketcher.Constraint("Tangent", 12, 2, 13, 2))
sketch6.addConstraint(Sketcher.Constraint("Tangent", 13, 1, 14, 1))
sketch6.addConstraint(Sketcher.Constraint("Tangent", 14, 2, 15, 2))
sketch6.addConstraint(Sketcher.Constraint("Tangent", 15, 1, 8, 1))
sketch6.addConstraint(Sketcher.Constraint("Horizontal", 0))
sketch6.addConstraint(Sketcher.Constraint("Vertical", 2))
sketch6.addConstraint(Sketcher.Constraint("Horizontal", 4))
sketch6.addConstraint(Sketcher.Constraint("Vertical", 6))
sketch6.addConstraint(Sketcher.Constraint("Horizontal", 8))
sketch6.addConstraint(Sketcher.Constraint("Vertical", 10))
sketch6.addConstraint(Sketcher.Constraint("Horizontal", 12))
sketch6.addConstraint(Sketcher.Constraint("Vertical", 14))
sketch6.addConstraint(Sketcher.Constraint("Equal", 1, 3))
sketch6.addConstraint(Sketcher.Constraint("Equal", 3, 5))
sketch6.addConstraint(Sketcher.Constraint("Equal", 5, 7))
sketch6.addConstraint(Sketcher.Constraint("Equal", 7, 9))
sketch6.addConstraint(Sketcher.Constraint("Equal", 9, 11))
sketch6.addConstraint(Sketcher.Constraint("Equal", 11, 13))
sketch6.addConstraint(Sketcher.Constraint("Equal", 13, 15))
sketch6.addConstraint(Sketcher.Constraint("Symmetric", 5, 3, 9, 3, -1, 1))
sketch6.addConstraint(Sketcher.Constraint("Symmetric", 1, 3, 13, 3, -1, 1))
sketch6.addConstraint(Sketcher.Constraint("Vertical", 3, 3, 9, 3))
sketch6.addConstraint(Sketcher.Constraint("Radius", 1, 5.0))
sketch6.addConstraint(Sketcher.Constraint("DistanceX", 0, 2, 0, 1, 50.0))
sketch6.addConstraint(Sketcher.Constraint("DistanceY", 2, 1, 2, 2, 40.0))
sketch6.addConstraint(Sketcher.Constraint("DistanceY", -1, 1, 1, 3, 98.0))
sketch6.setExpression("Constraints[34]", "Params.sketch6_radius")
sketch6.setExpression("Constraints[35]", "Params.sketch6_width")
sketch6.setExpression("Constraints[36]", "Params.sketch6_height")
pocket5 = doc.addObject("PartDesign::Pocket", "Pocket004")
body.addObject(pocket5)
pocket5.Profile = sketch6
pocket5.setExpression("Length", "Params.pocket5_length")
pocket5.Reversed = True

doc.recompute()
